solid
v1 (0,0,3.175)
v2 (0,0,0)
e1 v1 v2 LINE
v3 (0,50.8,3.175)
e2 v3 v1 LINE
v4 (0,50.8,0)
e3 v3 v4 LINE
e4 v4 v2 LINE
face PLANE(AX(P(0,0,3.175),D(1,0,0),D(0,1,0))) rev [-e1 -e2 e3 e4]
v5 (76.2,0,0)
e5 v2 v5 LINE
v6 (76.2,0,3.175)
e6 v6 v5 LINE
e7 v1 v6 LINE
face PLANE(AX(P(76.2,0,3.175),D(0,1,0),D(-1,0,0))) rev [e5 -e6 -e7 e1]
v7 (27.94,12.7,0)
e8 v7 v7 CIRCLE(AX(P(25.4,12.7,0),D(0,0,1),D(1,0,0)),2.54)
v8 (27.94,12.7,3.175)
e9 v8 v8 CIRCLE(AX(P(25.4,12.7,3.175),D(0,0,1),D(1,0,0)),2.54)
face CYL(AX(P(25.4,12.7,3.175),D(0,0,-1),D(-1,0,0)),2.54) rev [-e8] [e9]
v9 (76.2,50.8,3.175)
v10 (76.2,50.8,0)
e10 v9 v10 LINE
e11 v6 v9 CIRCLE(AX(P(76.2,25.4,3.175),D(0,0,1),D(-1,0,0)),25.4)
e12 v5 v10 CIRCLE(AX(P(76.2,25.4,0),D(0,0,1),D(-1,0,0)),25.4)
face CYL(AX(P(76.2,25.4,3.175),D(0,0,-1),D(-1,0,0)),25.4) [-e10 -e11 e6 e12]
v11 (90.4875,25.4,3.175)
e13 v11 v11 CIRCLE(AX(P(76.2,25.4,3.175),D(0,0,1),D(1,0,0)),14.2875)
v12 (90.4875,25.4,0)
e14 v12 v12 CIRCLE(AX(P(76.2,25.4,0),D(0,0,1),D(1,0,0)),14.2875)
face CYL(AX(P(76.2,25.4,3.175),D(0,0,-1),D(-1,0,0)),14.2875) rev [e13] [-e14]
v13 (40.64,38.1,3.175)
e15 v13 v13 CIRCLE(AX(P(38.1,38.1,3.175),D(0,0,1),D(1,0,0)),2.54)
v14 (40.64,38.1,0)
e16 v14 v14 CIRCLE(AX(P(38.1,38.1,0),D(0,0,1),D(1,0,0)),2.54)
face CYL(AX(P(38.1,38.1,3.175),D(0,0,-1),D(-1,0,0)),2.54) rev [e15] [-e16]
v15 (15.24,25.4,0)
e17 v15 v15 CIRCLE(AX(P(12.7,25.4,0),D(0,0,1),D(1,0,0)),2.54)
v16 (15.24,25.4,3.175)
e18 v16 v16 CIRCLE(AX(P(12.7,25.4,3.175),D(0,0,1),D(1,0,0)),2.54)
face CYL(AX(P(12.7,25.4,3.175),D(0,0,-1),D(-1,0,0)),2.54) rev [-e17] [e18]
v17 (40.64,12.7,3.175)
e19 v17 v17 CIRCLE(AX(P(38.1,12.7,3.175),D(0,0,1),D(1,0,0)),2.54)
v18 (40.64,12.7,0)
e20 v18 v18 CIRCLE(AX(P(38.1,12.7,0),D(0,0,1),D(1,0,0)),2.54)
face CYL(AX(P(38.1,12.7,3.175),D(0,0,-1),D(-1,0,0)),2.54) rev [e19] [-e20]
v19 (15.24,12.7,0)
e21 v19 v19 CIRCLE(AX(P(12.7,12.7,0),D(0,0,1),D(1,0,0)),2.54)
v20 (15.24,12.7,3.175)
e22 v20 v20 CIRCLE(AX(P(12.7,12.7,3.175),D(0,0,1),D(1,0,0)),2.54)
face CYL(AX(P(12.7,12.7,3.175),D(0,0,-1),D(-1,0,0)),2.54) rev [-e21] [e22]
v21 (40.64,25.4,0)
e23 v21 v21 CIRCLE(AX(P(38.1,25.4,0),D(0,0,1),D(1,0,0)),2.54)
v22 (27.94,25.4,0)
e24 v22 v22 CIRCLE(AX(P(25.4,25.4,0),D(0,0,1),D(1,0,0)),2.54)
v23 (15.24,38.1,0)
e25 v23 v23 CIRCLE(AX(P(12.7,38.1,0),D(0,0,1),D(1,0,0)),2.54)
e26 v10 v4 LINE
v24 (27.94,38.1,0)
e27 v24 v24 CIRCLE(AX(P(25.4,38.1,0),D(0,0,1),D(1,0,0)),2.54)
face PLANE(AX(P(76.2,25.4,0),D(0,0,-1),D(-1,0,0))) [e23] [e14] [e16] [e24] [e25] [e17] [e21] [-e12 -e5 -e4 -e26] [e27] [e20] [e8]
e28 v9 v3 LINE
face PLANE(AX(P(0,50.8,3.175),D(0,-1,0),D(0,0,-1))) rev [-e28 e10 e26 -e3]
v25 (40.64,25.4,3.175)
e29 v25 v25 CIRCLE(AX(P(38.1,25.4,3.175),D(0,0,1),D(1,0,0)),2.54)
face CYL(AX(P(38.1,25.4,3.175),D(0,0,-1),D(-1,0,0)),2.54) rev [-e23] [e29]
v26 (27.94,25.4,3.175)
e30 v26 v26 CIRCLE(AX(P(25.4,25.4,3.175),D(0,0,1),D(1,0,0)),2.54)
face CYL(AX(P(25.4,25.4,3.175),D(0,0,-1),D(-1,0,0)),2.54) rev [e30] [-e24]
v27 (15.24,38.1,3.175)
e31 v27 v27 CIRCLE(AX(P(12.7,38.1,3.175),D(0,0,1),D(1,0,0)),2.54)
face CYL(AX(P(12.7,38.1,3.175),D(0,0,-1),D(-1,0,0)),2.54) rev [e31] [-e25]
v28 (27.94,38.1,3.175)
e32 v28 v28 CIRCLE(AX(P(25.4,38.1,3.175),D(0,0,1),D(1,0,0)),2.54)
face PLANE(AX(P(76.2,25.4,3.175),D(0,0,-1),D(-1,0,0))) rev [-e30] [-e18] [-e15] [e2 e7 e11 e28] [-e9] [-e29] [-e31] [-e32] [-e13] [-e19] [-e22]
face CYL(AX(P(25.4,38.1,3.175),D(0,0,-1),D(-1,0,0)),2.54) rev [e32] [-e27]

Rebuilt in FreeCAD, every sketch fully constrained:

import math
import FreeCAD as App
import Part
import Sketcher

V = App.Vector
Q = App.Units.Quantity

doc = App.newDocument("Part")
params = doc.addObject("Spreadsheet::Sheet", "Params")
for row, (alias, value) in enumerate([
    ("sketch1_radius", "1 in"),
    ("sketch1_diameter", "0.2 in"),
    ("sketch1_width", "3 in"),
    ("sketch1_diameter2", "1.125 in"),
    ("pad1_length", "0.125 in"),
], start=1):
    params.set(f"A{row}", alias)
    params.set(f"B{row}", "=" + value)
    params.setAlias(f"B{row}", alias)

body = doc.addObject("PartDesign::Body", "Body")

sketch1 = body.newObject("Sketcher::SketchObject", "Sketch")
sketch1.AttachmentSupport = (doc.getObject("XY_Plane"), [""])
sketch1.MapMode = "FlatFace"
sketch1.addGeometry([
    Part.LineSegment(V(0, 50.8, 0), V(0, 0, 0)),
    Part.LineSegment(V(0, 0, 0), V(76.2, 0, 0)),
    Part.ArcOfCircle(Part.Circle(V(76.2, 25.4, 0), V(0, 0, 1), 25.4), math.radians(-90), math.radians(90)),
    Part.LineSegment(V(76.2, 50.8, 0), V(0, 50.8, 0)),
    Part.Circle(V(76.2, 25.4, 0), V(0, 0, 1), 14.2875),
    Part.Circle(V(38.1, 12.7, 0), V(0, 0, 1), 2.54),
    Part.Circle(V(25.4, 12.7, 0), V(0, 0, 1), 2.54),
    Part.Circle(V(12.7, 12.7, 0), V(0, 0, 1), 2.54),
    Part.Circle(V(38.1, 25.4, 0), V(0, 0, 1), 2.54),
    Part.Circle(V(25.4, 25.4, 0), V(0, 0, 1), 2.54),
    Part.Circle(V(12.7, 25.4, 0), V(0, 0, 1), 2.54),
    Part.Circle(V(38.1, 38.1, 0), V(0, 0, 1), 2.54),
    Part.Circle(V(25.4, 38.1, 0), V(0, 0, 1), 2.54),
    Part.Circle(V(12.7, 38.1, 0), V(0, 0, 1), 2.54),
], False)
sketch1.addConstraint([
    Sketcher.Constraint("Coincident", 0, 2, 1, 1),
    Sketcher.Constraint("Tangent", 1, 2, 2, 1),
    Sketcher.Constraint("Tangent", 2, 2, 3, 1),
    Sketcher.Constraint("Coincident", 3, 2, 0, 1),
    Sketcher.Constraint("Vertical", 0),
    Sketcher.Constraint("Horizontal", 1),
    Sketcher.Constraint("Horizontal", 3),
    Sketcher.Constraint("Coincident", 0, 2, -1, 1),
    Sketcher.Constraint("Coincident", 4, 3, 2, 3),
    Sketcher.Constraint("Equal", 5, 6),
    Sketcher.Constraint("Equal", 6, 7),
    Sketcher.Constraint("Equal", 7, 8),
    Sketcher.Constraint("Equal", 8, 9),
    Sketcher.Constraint("Equal", 9, 10),
    Sketcher.Constraint("Equal", 10, 11),
    Sketcher.Constraint("Equal", 11, 12),
    Sketcher.Constraint("Equal", 12, 13),
    Sketcher.Constraint("Horizontal", 5, 3, 6, 3),
    Sketcher.Constraint("Horizontal", 6, 3, 7, 3),
    Sketcher.Constraint("Horizontal", 4, 3, 8, 3),
    Sketcher.Constraint("Horizontal", 8, 3, 9, 3),
    Sketcher.Constraint("Horizontal", 9, 3, 10, 3),
    Sketcher.Constraint("Horizontal", 11, 3, 12, 3),
    Sketcher.Constraint("Horizontal", 12, 3, 13, 3),
    Sketcher.Constraint("Vertical", 5, 3, 8, 3),
    Sketcher.Constraint("Vertical", 6, 3, 9, 3),
    Sketcher.Constraint("Vertical", 7, 3, 10, 3),
    Sketcher.Constraint("Vertical", 8, 3, 11, 3),
    Sketcher.Constraint("Vertical", 9, 3, 12, 3),
    Sketcher.Constraint("Vertical", 10, 3, 13, 3),
    Sketcher.Constraint("Radius", 2, Q("1 in")),
    Sketcher.Constraint("Diameter", 5, Q("0.2 in")),
    Sketcher.Constraint("DistanceX", 1, 1, 1, 2, Q("3 in")),
    Sketcher.Constraint("Diameter", 4, Q("1.125 in")),
    Sketcher.Constraint("DistanceX", -1, 1, 6, 3, Q("1 in")),
    Sketcher.Constraint("DistanceX", 7, 3, 5, 3, Q("1 in")),
    Sketcher.Constraint("DistanceY", 5, 3, 11, 3, Q("1 in")),
    Sketcher.Constraint("DistanceX", -1, 1, 5, 3, Q("1.5 in")),
    Sketcher.Constraint("DistanceY", -1, 1, 5, 3, Q("0.5 in")),
])
sketch1.setExpression("Constraints[30]", "Params.sketch1_radius")
sketch1.setExpression("Constraints[31]", "Params.sketch1_diameter")
sketch1.setExpression("Constraints[32]", "Params.sketch1_width")
sketch1.setExpression("Constraints[33]", "Params.sketch1_diameter2")
pad1 = body.newObject("PartDesign::Pad", "Pad")
pad1.Profile = sketch1
pad1.setExpression("Length", "Params.pad1_length")

doc.recompute()
